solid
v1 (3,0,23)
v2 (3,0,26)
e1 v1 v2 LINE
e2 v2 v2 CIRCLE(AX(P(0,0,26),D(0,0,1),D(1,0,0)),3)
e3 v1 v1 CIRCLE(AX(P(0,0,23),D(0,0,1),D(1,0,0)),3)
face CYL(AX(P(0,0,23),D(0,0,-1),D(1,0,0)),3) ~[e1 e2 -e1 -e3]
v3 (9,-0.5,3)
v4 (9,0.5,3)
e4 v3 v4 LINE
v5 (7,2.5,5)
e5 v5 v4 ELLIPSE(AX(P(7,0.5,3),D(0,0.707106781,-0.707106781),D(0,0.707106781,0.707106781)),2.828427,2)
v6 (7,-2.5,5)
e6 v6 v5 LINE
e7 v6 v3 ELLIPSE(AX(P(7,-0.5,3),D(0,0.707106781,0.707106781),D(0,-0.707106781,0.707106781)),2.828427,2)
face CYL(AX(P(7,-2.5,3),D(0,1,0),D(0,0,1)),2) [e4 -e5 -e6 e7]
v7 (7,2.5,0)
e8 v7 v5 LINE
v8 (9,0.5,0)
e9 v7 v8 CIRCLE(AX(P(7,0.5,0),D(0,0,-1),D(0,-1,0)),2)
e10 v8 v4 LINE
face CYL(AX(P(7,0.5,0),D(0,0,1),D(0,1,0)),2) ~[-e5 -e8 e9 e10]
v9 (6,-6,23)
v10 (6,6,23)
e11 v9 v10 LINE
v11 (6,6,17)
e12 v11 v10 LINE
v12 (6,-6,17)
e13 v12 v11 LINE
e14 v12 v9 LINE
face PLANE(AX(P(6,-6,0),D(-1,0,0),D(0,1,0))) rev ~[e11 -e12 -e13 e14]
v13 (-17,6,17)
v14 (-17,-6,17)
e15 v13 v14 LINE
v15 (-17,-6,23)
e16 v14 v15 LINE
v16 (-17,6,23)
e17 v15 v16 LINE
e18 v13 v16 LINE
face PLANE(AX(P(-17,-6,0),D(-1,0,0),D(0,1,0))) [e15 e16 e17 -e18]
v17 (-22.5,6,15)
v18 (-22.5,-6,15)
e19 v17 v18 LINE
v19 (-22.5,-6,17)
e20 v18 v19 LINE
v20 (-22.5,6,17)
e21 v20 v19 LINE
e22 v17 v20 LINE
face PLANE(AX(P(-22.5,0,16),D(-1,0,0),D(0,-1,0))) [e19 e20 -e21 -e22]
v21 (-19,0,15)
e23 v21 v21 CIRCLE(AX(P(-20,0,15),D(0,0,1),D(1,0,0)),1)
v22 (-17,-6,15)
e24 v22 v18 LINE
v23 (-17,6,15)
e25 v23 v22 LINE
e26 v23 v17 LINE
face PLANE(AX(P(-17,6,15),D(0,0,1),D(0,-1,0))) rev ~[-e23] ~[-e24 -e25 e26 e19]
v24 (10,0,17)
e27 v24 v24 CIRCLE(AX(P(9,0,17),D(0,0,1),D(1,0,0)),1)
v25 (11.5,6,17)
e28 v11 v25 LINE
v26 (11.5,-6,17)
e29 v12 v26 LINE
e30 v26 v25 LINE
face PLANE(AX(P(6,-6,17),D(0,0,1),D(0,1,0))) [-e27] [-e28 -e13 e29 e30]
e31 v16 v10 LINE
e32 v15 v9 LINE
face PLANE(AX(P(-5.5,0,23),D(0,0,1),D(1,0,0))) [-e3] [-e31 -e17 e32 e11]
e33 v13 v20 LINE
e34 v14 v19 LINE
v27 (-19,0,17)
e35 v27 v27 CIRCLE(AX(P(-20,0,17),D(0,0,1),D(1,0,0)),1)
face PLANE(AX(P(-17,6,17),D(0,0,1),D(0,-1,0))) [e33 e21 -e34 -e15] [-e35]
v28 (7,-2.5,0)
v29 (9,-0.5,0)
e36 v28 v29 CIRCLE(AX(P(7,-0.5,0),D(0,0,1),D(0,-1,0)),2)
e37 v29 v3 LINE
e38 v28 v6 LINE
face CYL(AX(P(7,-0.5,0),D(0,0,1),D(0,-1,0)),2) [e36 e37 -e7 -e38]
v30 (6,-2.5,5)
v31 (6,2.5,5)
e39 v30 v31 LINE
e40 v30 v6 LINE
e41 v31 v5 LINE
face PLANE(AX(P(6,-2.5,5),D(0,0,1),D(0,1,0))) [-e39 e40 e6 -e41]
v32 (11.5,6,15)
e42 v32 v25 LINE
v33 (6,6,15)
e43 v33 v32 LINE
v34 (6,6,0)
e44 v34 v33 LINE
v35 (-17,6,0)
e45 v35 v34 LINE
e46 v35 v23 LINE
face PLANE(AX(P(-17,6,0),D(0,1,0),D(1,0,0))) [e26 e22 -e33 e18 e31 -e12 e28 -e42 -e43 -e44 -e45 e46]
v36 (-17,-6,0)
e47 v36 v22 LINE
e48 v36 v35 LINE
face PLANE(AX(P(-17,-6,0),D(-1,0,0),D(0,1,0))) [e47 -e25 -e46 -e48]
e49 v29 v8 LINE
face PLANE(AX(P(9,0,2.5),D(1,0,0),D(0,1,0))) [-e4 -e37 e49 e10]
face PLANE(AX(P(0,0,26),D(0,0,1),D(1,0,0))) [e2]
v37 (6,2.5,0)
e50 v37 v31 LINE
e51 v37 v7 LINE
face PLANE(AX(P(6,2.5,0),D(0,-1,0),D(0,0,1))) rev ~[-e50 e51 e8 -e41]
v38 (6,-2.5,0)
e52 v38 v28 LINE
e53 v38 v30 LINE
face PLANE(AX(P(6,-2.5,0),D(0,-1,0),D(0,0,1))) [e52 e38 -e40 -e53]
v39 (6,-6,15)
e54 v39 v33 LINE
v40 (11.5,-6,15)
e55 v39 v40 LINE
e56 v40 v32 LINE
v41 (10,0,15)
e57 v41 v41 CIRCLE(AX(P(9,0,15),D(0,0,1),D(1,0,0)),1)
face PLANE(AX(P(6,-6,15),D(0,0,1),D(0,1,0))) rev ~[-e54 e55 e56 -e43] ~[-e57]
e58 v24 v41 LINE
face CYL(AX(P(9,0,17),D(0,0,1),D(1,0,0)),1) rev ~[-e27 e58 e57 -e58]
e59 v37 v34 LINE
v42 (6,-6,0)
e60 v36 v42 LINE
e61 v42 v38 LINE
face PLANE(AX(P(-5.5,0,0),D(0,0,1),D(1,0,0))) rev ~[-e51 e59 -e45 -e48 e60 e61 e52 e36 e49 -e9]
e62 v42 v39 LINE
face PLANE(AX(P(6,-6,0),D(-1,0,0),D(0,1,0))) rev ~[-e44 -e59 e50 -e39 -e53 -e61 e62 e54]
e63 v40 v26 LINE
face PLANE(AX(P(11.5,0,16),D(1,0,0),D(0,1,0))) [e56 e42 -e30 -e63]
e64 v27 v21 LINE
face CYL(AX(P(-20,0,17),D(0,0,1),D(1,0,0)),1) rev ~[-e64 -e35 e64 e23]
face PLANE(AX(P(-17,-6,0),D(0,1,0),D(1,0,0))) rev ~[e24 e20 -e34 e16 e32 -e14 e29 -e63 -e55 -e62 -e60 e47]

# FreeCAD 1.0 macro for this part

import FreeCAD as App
import Part
import Sketcher
from FreeCAD import Vector


def edges_at(feature, points):
    """Names of the edges that pass closest to the given points."""
    edges = feature.Shape.Edges
    near = lambda p: min(range(len(edges)), key=lambda i: edges[i].distToShape(Part.Vertex(*p))[0])
    return sorted({f"Edge{near(p) + 1}" for p in points})

doc = App.newDocument("Part")
body = doc.addObject("PartDesign::Body", "Body")

sketch1 = body.newObject("Sketcher::SketchObject", "Sketch")
sketch1.AttachmentSupport = (doc.getObject("XY_Plane"), [""])
sketch1.MapMode = "FlatFace"
sketch1.addGeometry(Part.LineSegment(Vector(-17, 6, 0), Vector(-17, -6, 0)), False)
sketch1.addGeometry(Part.LineSegment(Vector(-17, -6, 0), Vector(6, -6, 0)), False)
sketch1.addGeometry(Part.LineSegment(Vector(6, -6, 0), Vector(6, 6, 0)), False)
sketch1.addGeometry(Part.LineSegment(Vector(6, 6, 0), Vector(-17, 6, 0)), False)
sketch1.addConstraint(Sketcher.Constraint("Coincident", 0, 2, 1, 1))
sketch1.addConstraint(Sketcher.Constraint("Coincident", 1, 2, 2, 1))
sketch1.addConstraint(Sketcher.Constraint("Coincident", 2, 2, 3, 1))
sketch1.addConstraint(Sketcher.Constraint("Coincident", 3, 2, 0, 1))
sketch1.addConstraint(Sketcher.Constraint("Vertical", 0))
sketch1.addConstraint(Sketcher.Constraint("Horizontal", 1))
sketch1.addConstraint(Sketcher.Constraint("Vertical", 2))
sketch1.addConstraint(Sketcher.Constraint("Horizontal", 3))
sketch1.addConstraint(Sketcher.Constraint("DistanceX", 1, 1, 1, 2, 23.0))
sketch1.addConstraint(Sketcher.Constraint("DistanceY", 0, 2, 0, 1, 12.0))
sketch1.addConstraint(Sketcher.Constraint("DistanceX", 0, 2, -1, 1, 17.0))
sketch1.addConstraint(Sketcher.Constraint("DistanceY", 0, 2, -1, 1, 6.0))
pad1 = body.newObject("PartDesign::Pad", "Pad")
pad1.Profile = sketch1
pad1.Length = 23

sketch2 = body.newObject("Sketcher::SketchObject", "Sketch001")
sketch2.AttachmentSupport = (doc.getObject("YZ_Plane"), [""])
sketch2.MapMode = "FlatFace"
sketch2.AttachmentOffset = App.Placement(Vector(0, 0, 6), App.Rotation())
sketch2.addGeometry(Part.LineSegment(Vector(-6, 17, 0), Vector(-6, 15, 0)), False)
sketch2.addGeometry(Part.LineSegment(Vector(-6, 15, 0), Vector(6, 15, 0)), False)
sketch2.addGeometry(Part.LineSegment(Vector(6, 15, 0), Vector(6, 17, 0)), False)
sketch2.addGeometry(Part.LineSegment(Vector(6, 17, 0), Vector(-6, 17, 0)), False)
sketch2.addConstraint(Sketcher.Constraint("Coincident", 0, 2, 1, 1))
sketch2.addConstraint(Sketcher.Constraint("Coincident", 1, 2, 2, 1))
sketch2.addConstraint(Sketcher.Constraint("Coincident", 2, 2, 3, 1))
sketch2.addConstraint(Sketcher.Constraint("Coincident", 3, 2, 0, 1))
sketch2.addConstraint(Sketcher.Constraint("Vertical", 0))
sketch2.addConstraint(Sketcher.Constraint("Horizontal", 1))
sketch2.addConstraint(Sketcher.Constraint("Vertical", 2))
sketch2.addConstraint(Sketcher.Constraint("Horizontal", 3))
sketch2.addConstraint(Sketcher.Constraint("DistanceX", 1, 1, 1, 2, 12.0))
sketch2.addConstraint(Sketcher.Constraint("DistanceY", 0, 2, 0, 1, 2.0))
sketch2.addConstraint(Sketcher.Constraint("DistanceX", 0, 2, -1, 1, 6.0))
sketch2.addConstraint(Sketcher.Constraint("DistanceY", -1, 1, 0, 2, 15.0))
pad2 = body.newObject("PartDesign::Pad", "Pad001")
pad2.Profile = sketch2
pad2.Length = 5.5

sketch3 = body.newObject("Sketcher::SketchObject", "Sketch002")
sketch3.AttachmentSupport = (doc.getObject("YZ_Plane"), [""])
sketch3.MapMode = "FlatFace"
sketch3.AttachmentOffset = App.Placement(Vector(0, 0, -17), App.Rotation())
sketch3.addGeometry(Part.LineSegment(Vector(6, 17, 0), Vector(6, 15, 0)), False)
sketch3.addGeometry(Part.LineSegment(Vector(6, 15, 0), Vector(-6, 15, 0)), False)
sketch3.addGeometry(Part.LineSegment(Vector(-6, 15, 0), Vector(-6, 17, 0)), False)
sketch3.addGeometry(Part.LineSegment(Vector(-6, 17, 0), Vector(6, 17, 0)), False)
sketch3.addConstraint(Sketcher.Constraint("Coincident", 0, 2, 1, 1))
sketch3.addConstraint(Sketcher.Constraint("Coincident", 1, 2, 2, 1))
sketch3.addConstraint(Sketcher.Constraint("Coincident", 2, 2, 3, 1))
sketch3.addConstraint(Sketcher.Constraint("Coincident", 3, 2, 0, 1))
sketch3.addConstraint(Sketcher.Constraint("Vertical", 0))
sketch3.addConstraint(Sketcher.Constraint("Horizontal", 1))
sketch3.addConstraint(Sketcher.Constraint("Vertical", 2))
sketch3.addConstraint(Sketcher.Constraint("Horizontal", 3))
sketch3.addConstraint(Sketcher.Constraint("DistanceX", 1, 2, 1, 1, 12.0))
sketch3.addConstraint(Sketcher.Constraint("DistanceY", 0, 2, 0, 1, 2.0))
sketch3.addConstraint(Sketcher.Constraint("DistanceX", -1, 1, 0, 2, 6.0))
sketch3.addConstraint(Sketcher.Constraint("DistanceY", -1, 1, 0, 2, 15.0))
pad3 = body.newObject("PartDesign::Pad", "Pad002")
pad3.Profile = sketch3
pad3.Length = 5.5
pad3.Reversed = True

sketch4 = body.newObject("Sketcher::SketchObject", "Sketch003")
sketch4.AttachmentSupport = (doc.getObject("XY_Plane"), [""])
sketch4.MapMode = "FlatFace"
sketch4.AttachmentOffset = App.Placement(Vector(0, 0, 17), App.Rotation())
sketch4.addGeometry(Part.Circle(Vector(-20, 0, 0), Vector(0, 0, 1), 1), False)
sketch4.addGeometry(Part.Circle(Vector(9, 0, 0), Vector(0, 0, 1), 1), False)
sketch4.addConstraint(Sketcher.Constraint("Equal", 0, 1))
sketch4.addConstraint(Sketcher.Constraint("PointOnObject", 0, 3, -1))
sketch4.addConstraint(Sketcher.Constraint("PointOnObject", 1, 3, -1))
sketch4.addConstraint(Sketcher.Constraint("Diameter", 0, 2.0))
sketch4.addConstraint(Sketcher.Constraint("DistanceX", 0, 3, -1, 1, 20.0))
sketch4.addConstraint(Sketcher.Constraint("DistanceX", -1, 1, 1, 3, 9.0))
pocket1 = body.newObject("PartDesign::Pocket", "Pocket")
pocket1.Profile = sketch4
pocket1.Length = 5

sketch5 = body.newObject("Sketcher::SketchObject", "Sketch004")
sketch5.AttachmentSupport = (doc.getObject("XY_Plane"), [""])
sketch5.MapMode = "FlatFace"
sketch5.AttachmentOffset = App.Placement(Vector(0, 0, 23), App.Rotation())
sketch5.addGeometry(Part.Circle(Vector(0, 0, 0), Vector(0, 0, 1), 3), False)
sketch5.addConstraint(Sketcher.Constraint("Coincident", 0, 3, -1, 1))
sketch5.addConstraint(Sketcher.Constraint("Diameter", 0, 6.0))
pad4 = body.newObject("PartDesign::Pad", "Pad003")
pad4.Profile = sketch5
pad4.Length = 3

sketch6 = body.newObject("Sketcher::SketchObject", "Sketch005")
sketch6.AttachmentSupport = (doc.getObject("YZ_Plane"), [""])
sketch6.MapMode = "FlatFace"
sketch6.AttachmentOffset = App.Placement(Vector(0, 0, 6), App.Rotation())
sketch6.addGeometry(Part.LineSegment(Vector(-2, 5, 0), Vector(-2, 0, 0)), False)
sketch6.addGeometry(Part.LineSegment(Vector(-2, 0, 0), Vector(2, 0, 0)), False)
sketch6.addGeometry(Part.LineSegment(Vector(2, 0, 0), Vector(2, 5, 0)), False)
sketch6.addGeometry(Part.LineSegment(Vector(2, 5, 0), Vector(-2, 5, 0)), False)
sketch6.addConstraint(Sketcher.Constraint("Coincident", 0, 2, 1, 1))
sketch6.addConstraint(Sketcher.Constraint("Coincident", 1, 2, 2, 1))
sketch6.addConstraint(Sketcher.Constraint("Coincident", 2, 2, 3, 1))
sketch6.addConstraint(Sketcher.Constraint("Coincident", 3, 2, 0, 1))
sketch6.addConstraint(Sketcher.Constraint("Vertical", 0))
sketch6.addConstraint(Sketcher.Constraint("Horizontal", 1))
sketch6.addConstraint(Sketcher.Constraint("Vertical", 2))
sketch6.addConstraint(Sketcher.Constraint("Horizontal", 3))
sketch6.addConstraint(Sketcher.Constraint("Symmetric", 0, 2, 1, 2, -1, 1))
sketch6.addConstraint(Sketcher.Constraint("Equal", 3, 0))
sketch6.addConstraint(Sketcher.Constraint("DistanceX", 1, 1, 1, 2, 5.0))
pad5 = body.newObject("PartDesign::Pad", "Pad004")
pad5.Profile = sketch6
pad5.Length = 3
doc.recompute()

fillet = body.newObject("PartDesign::Fillet", "Fillet")
fillet.Base = (pad5, edges_at(pad5, [(9, -2.5, 2.5), (9, 2.5, 2.5), (9, 0, 5)]))
fillet.Radius = 2

doc.recompute()
